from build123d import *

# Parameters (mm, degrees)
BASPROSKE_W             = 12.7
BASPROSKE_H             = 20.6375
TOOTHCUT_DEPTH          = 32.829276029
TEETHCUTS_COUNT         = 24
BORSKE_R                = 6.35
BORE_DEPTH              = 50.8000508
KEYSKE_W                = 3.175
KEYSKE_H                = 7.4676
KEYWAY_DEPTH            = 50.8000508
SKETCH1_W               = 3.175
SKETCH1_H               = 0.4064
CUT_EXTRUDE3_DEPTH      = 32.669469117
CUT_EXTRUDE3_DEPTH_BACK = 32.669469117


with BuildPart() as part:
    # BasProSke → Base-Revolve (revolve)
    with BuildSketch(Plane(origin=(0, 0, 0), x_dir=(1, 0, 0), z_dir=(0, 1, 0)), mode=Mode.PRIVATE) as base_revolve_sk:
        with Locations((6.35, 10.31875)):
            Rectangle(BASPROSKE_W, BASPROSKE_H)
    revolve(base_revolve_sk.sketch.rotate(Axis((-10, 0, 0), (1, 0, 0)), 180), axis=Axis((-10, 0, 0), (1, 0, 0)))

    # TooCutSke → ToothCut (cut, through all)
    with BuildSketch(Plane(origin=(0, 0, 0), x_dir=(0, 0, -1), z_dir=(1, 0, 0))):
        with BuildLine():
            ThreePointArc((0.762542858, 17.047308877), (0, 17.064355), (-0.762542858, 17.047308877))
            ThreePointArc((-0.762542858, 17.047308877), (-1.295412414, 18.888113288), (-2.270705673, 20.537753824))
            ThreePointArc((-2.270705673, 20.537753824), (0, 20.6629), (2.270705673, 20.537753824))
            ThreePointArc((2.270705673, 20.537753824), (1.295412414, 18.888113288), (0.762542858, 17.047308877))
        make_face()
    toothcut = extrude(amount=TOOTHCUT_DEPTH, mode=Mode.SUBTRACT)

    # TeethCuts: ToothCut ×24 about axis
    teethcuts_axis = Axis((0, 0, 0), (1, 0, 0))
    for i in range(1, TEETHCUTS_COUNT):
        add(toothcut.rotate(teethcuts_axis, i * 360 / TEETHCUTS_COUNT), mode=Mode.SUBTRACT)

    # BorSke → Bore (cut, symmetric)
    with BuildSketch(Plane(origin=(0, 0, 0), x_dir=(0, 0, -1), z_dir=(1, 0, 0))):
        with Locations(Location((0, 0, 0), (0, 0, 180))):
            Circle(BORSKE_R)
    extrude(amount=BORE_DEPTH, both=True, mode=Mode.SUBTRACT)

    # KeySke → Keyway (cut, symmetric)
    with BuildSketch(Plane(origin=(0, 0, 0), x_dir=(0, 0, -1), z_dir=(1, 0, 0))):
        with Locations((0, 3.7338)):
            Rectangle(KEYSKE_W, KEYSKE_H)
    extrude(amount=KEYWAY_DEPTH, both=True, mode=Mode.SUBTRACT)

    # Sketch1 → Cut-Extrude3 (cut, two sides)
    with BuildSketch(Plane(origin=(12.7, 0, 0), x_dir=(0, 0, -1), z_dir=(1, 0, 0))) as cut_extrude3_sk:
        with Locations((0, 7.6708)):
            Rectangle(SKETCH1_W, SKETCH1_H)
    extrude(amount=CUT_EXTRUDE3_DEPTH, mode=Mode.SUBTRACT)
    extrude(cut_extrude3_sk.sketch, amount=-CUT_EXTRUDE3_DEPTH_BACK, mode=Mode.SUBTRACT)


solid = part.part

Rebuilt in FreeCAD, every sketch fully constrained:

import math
import FreeCAD as App
import Part
import Sketcher

V = App.Vector
Q = App.Units.Quantity

doc = App.newDocument("Part")
body = doc.addObject("PartDesign::Body", "Body")

# Sketch on XZ plane
sketch1 = body.newObject("Sketcher::SketchObject", "Sketch")
sketch1.AttachmentSupport = (doc.getObject("XZ_Plane"), [""])
sketch1.MapMode = "FlatFace"
sketch1.addGeometry(Part.LineSegment(V(0, -21, 0), V(0, 0, 0)), False)
sketch1.addGeometry(Part.LineSegment(V(0, 0, 0), V(13, 0, 0)), False)
sketch1.addGeometry(Part.LineSegment(V(13, 0, 0), V(13, -21, 0)), False)
sketch1.addGeometry(Part.LineSegment(V(13, -21, 0), V(0, -21, 0)), False)
sketch1.addConstraint(Sketcher.Constraint("Coincident", 0, 2, 1, 1))
sketch1.addConstraint(Sketcher.Constraint("Coincident", 1, 2, 2, 1))
sketch1.addConstraint(Sketcher.Constraint("Coincident", 2, 2, 3, 1))
sketch1.addConstraint(Sketcher.Constraint("Coincident", 3, 2, 0, 1))
sketch1.addConstraint(Sketcher.Constraint("Vertical", 0))
sketch1.addConstraint(Sketcher.Constraint("Horizontal", 1))
sketch1.addConstraint(Sketcher.Constraint("Vertical", 2))
sketch1.addConstraint(Sketcher.Constraint("Horizontal", 3))
sketch1.addConstraint(Sketcher.Constraint("Coincident", 0, 2, -1, 1))
sketch1.addConstraint(Sketcher.Constraint("DistanceX", 1, 1, 1, 2, Q("0.5 in")))
sketch1.addConstraint(Sketcher.Constraint("DistanceY", 0, 1, 0, 2, Q("0.8125 in")))
revolution = body.newObject("PartDesign::Revolution", "Revolution")
revolution.Profile = sketch1
revolution.ReferenceAxis = (sketch1, ["H_Axis"])
revolution.Angle = 360

# Sketch on YZ plane
sketch2 = body.newObject("Sketcher::SketchObject", "Sketch001")
sketch2.AttachmentSupport = (doc.getObject("YZ_Plane"), [""])
sketch2.MapMode = "FlatFace"
sketch2.addGeometry(Part.ArcOfCircle(Part.Circle(V(0, 0, 0), V(0, 0, 1), 17.1), math.radians(-2.56), math.radians(2.56)), False)
sketch2.addGeometry(Part.ArcOfCircle(Part.Circle(V(15.9, -8.3, 0), V(0, 0, 1), 7.6), math.radians(52), math.radians(81)), False)
sketch2.addGeometry(Part.ArcOfCircle(Part.Circle(V(0, 0, 0), V(0, 0, 1), 20.7), math.radians(-6.31), math.radians(6.31)), False)
sketch2.addGeometry(Part.ArcOfCircle(Part.Circle(V(15.9, 8.3, 0), V(0, 0, 1), 7.6), math.radians(-81), math.radians(-52)), False)
sketch2.addConstraint(Sketcher.Constraint("Coincident", 0, 1, 1, 2))
sketch2.addConstraint(Sketcher.Constraint("Coincident", 1, 1, 2, 1))
sketch2.addConstraint(Sketcher.Constraint("Coincident", 2, 2, 3, 2))
sketch2.addConstraint(Sketcher.Constraint("Coincident", 3, 1, 0, 2))
sketch2.addConstraint(Sketcher.Constraint("Coincident", 0, 3, -1, 1))
sketch2.addConstraint(Sketcher.Constraint("Coincident", 2, 3, -1, 1))
sketch2.addConstraint(Sketcher.Constraint("Equal", 1, 3))
sketch2.addConstraint(Sketcher.Constraint("Symmetric", 1, 3, 3, 3, -1))
sketch2.addConstraint(Sketcher.Constraint("Radius", 1, Q("0.3 in")))
sketch2.addConstraint(Sketcher.Constraint("Radius", 2, Q("0.8135 in")))
sketch2.addConstraint(Sketcher.Constraint("Radius", 0, 17.064355))
sketch2.addConstraint(Sketcher.Constraint("DistanceX", 1, 3, 0, 1, 1.181601))
sketch2.addConstraint(Sketcher.Constraint("DistanceX", -1, 1, 1, 3, 15.865708))
pocket1 = body.newObject("PartDesign::Pocket", "Pocket")
pocket1.Profile = sketch2
pocket1.Type = "ThroughAll"
pocket1.Reversed = True
doc.recompute()

polarpattern = body.newObject("PartDesign::PolarPattern", "PolarPattern")
polarpattern.Originals = [pocket1]
polarpattern.Axis = (doc.getObject("X_Axis"), [""])
polarpattern.Angle = 360
polarpattern.Occurrences = 24
body.Tip = polarpattern

# Sketch on YZ plane
sketch3 = body.newObject("Sketcher::SketchObject", "Sketch002")
sketch3.AttachmentSupport = (doc.getObject("YZ_Plane"), [""])
sketch3.MapMode = "FlatFace"
sketch3.addGeometry(Part.Circle(V(0, 0, 0), V(0, 0, 1), 6), False)
sketch3.addConstraint(Sketcher.Constraint("Coincident", 0, 3, -1, 1))
sketch3.addConstraint(Sketcher.Constraint("Diameter", 0, Q("0.5 in")))
pocket2 = body.newObject("PartDesign::Pocket", "Pocket001")
pocket2.Profile = sketch3
pocket2.Length = 101.600102
pocket2.Midplane = True

# Sketch on YZ plane
sketch4 = body.newObject("Sketcher::SketchObject", "Sketch003")
sketch4.AttachmentSupport = (doc.getObject("YZ_Plane"), [""])
sketch4.MapMode = "FlatFace"
sketch4.addGeometry(Part.LineSegment(V(7.5, 1.6, 0), V(0, 1.6, 0)), False)
sketch4.addGeometry(Part.LineSegment(V(0, 1.6, 0), V(0, -1.6, 0)), False)
sketch4.addGeometry(Part.LineSegment(V(0, -1.6, 0), V(7.5, -1.6, 0)), False)
sketch4.addGeometry(Part.LineSegment(V(7.5, -1.6, 0), V(7.5, 1.6, 0)), False)
sketch4.addConstraint(Sketcher.Constraint("Coincident", 0, 2, 1, 1))
sketch4.addConstraint(Sketcher.Constraint("Coincident", 1, 2, 2, 1))
sketch4.addConstraint(Sketcher.Constraint("Coincident", 2, 2, 3, 1))
sketch4.addConstraint(Sketcher.Constraint("Coincident", 3, 2, 0, 1))
sketch4.addConstraint(Sketcher.Constraint("Horizontal", 0))
sketch4.addConstraint(Sketcher.Constraint("Vertical", 1))
sketch4.addConstraint(Sketcher.Constraint("Horizontal", 2))
sketch4.addConstraint(Sketcher.Constraint("Vertical", 3))
sketch4.addConstraint(Sketcher.Constraint("Symmetric", 0, 2, 1, 2, -1, 1))
sketch4.addConstraint(Sketcher.Constraint("DistanceX", 0, 2, 0, 1, Q("0.294 in")))
sketch4.addConstraint(Sketcher.Constraint("DistanceY", 1, 2, 1, 1, Q("0.125 in")))
pocket3 = body.newObject("PartDesign::Pocket", "Pocket002")
pocket3.Profile = sketch4
pocket3.Length = 101.600102
pocket3.Midplane = True

# Sketch on YZ plane
sketch5 = body.newObject("Sketcher::SketchObject", "Sketch004")
sketch5.AttachmentSupport = (doc.getObject("YZ_Plane"), [""])
sketch5.MapMode = "FlatFace"
sketch5.AttachmentOffset = App.Placement(V(0, 0, 0.5 * 25.4), App.Rotation())
sketch5.addGeometry(Part.LineSegment(V(7.87, 1.59, 0), V(7.47, 1.59, 0)), False)
sketch5.addGeometry(Part.LineSegment(V(7.47, 1.59, 0), V(7.47, -1.59, 0)), False)
sketch5.addGeometry(Part.LineSegment(V(7.47, -1.59, 0), V(7.87, -1.59, 0)), False)
sketch5.addGeometry(Part.LineSegment(V(7.87, -1.59, 0), V(7.87, 1.59, 0)), False)
sketch5.addConstraint(Sketcher.Constraint("Coincident", 0, 2, 1, 1))
sketch5.addConstraint(Sketcher.Constraint("Coincident", 1, 2, 2, 1))
sketch5.addConstraint(Sketcher.Constraint("Coincident", 2, 2, 3, 1))
sketch5.addConstraint(Sketcher.Constraint("Coincident", 3, 2, 0, 1))
sketch5.addConstraint(Sketcher.Constraint("Horizontal", 0))
sketch5.addConstraint(Sketcher.Constraint("Vertical", 1))
sketch5.addConstraint(Sketcher.Constraint("Horizontal", 2))
sketch5.addConstraint(Sketcher.Constraint("Vertical", 3))
sketch5.addConstraint(Sketcher.Constraint("DistanceX", 0, 2, 0, 1, Q("0.016 in")))
sketch5.addConstraint(Sketcher.Constraint("DistanceY", 1, 2, 1, 1, Q("0.125 in")))
sketch5.addConstraint(Sketcher.Constraint("DistanceX", -1, 1, 2, 2, Q("0.31 in")))
sketch5.addConstraint(Sketcher.Constraint("DistanceY", -1, 1, 0, 2, Q("0.0625 in")))
pocket4 = body.newObject("PartDesign::Pocket", "Pocket003")
pocket4.Profile = sketch5
pocket4.Type = "ThroughAll"
pocket4.Midplane = True

doc.recompute()
